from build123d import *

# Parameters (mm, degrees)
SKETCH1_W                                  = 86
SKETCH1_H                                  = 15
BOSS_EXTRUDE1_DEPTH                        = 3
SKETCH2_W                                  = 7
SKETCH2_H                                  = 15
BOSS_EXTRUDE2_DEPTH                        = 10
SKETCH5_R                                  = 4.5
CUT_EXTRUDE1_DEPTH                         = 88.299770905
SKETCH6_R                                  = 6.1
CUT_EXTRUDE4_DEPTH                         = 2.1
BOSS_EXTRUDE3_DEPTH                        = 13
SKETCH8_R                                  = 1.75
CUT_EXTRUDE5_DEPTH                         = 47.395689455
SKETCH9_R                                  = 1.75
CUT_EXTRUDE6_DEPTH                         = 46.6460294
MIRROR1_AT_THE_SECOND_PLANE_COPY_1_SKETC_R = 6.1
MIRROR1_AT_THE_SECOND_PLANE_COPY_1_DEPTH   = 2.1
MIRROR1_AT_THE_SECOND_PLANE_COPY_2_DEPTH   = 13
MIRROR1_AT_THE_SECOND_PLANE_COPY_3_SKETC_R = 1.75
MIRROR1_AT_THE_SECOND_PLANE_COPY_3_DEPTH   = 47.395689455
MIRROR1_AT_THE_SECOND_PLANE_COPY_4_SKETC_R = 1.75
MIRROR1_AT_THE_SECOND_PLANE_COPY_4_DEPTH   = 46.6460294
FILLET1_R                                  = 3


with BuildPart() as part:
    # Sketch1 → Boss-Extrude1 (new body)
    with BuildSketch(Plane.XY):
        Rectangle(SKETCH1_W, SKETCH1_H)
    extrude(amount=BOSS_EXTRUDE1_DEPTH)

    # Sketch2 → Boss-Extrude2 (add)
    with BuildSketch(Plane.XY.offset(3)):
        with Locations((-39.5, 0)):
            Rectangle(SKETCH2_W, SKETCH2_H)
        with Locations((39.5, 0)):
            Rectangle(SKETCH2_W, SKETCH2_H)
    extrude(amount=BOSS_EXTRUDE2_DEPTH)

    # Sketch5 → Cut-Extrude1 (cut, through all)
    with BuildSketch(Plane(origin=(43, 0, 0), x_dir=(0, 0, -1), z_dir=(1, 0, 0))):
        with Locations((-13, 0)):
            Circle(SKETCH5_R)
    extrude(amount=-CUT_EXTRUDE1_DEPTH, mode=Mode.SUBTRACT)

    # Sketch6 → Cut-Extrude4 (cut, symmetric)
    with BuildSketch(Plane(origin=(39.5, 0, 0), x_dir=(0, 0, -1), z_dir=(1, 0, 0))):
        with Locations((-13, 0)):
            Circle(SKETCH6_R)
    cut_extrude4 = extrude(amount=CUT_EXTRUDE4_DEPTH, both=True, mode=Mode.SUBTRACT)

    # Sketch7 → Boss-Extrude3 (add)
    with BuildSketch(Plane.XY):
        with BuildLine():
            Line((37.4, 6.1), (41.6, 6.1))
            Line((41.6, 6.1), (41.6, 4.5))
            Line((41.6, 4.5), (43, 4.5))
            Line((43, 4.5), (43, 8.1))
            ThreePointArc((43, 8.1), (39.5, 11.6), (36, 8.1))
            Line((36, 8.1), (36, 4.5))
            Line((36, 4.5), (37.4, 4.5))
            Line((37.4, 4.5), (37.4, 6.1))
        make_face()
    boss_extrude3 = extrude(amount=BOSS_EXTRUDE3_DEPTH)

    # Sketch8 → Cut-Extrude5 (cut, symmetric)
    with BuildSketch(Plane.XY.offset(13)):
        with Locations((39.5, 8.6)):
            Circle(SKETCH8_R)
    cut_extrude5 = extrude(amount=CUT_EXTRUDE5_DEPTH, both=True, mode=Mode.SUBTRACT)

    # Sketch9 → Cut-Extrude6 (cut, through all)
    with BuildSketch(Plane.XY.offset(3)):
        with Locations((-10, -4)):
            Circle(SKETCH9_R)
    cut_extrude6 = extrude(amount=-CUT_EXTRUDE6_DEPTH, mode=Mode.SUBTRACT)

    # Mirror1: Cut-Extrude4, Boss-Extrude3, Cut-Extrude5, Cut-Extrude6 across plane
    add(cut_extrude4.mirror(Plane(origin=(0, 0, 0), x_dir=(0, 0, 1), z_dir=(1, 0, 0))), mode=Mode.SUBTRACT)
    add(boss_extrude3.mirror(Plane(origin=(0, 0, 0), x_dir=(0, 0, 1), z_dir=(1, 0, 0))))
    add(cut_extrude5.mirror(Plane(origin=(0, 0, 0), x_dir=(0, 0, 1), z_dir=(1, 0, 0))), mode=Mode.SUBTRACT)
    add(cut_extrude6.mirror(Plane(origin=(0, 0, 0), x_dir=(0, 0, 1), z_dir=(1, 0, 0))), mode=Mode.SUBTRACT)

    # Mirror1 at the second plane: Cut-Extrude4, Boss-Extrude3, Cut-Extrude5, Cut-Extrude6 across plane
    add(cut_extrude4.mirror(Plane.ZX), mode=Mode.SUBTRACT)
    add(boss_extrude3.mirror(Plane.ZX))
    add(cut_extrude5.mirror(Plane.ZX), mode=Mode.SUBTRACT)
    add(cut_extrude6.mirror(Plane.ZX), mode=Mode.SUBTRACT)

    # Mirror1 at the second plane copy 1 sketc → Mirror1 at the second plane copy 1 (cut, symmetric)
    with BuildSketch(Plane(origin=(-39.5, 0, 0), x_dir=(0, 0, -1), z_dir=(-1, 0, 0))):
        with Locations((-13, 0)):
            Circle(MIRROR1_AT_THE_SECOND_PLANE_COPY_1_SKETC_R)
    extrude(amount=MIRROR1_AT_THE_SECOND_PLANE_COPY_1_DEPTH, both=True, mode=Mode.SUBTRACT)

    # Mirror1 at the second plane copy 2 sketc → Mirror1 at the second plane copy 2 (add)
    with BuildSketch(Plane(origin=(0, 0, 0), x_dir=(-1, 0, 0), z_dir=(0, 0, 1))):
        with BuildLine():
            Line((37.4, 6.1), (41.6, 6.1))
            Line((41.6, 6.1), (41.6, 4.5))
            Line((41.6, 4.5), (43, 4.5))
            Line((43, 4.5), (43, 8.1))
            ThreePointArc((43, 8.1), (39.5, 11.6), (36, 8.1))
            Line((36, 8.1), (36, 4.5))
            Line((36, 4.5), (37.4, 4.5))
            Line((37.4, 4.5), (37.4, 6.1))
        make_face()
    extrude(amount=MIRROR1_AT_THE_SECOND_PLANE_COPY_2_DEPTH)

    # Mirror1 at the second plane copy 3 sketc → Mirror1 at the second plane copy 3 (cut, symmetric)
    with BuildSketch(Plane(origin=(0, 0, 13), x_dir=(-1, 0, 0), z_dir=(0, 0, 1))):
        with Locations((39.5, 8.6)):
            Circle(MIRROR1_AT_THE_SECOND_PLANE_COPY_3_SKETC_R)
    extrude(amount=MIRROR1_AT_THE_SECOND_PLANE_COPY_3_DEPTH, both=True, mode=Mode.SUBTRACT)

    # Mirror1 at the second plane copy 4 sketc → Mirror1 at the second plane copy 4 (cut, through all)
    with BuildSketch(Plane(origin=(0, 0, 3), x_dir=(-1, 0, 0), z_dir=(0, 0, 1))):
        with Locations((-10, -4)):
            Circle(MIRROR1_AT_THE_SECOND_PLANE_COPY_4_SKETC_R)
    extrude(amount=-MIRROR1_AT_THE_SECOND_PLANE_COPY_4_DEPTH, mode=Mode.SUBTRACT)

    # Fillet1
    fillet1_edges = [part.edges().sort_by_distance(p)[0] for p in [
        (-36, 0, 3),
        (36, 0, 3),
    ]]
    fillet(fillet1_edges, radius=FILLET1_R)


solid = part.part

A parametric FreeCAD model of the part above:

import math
import FreeCAD as App
import Part
import Sketcher

V = App.Vector


def edges_at(feature, points):
    """Names of the edges that pass closest to the given points."""
    edges = feature.Shape.Edges
    near = lambda p: min(range(len(edges)), key=lambda i: edges[i].distToShape(Part.Vertex(*p))[0])
    return sorted({f"Edge{near(p) + 1}" for p in points})


def add_polygon(sketch, points):
    """Adds a closed chain of lines whose ends are joined by coincident constraints."""
    first, n = sketch.GeometryCount, len(points)
    for a, b in zip(points, points[1:] + points[:1]):
        sketch.addGeometry(Part.LineSegment(App.Vector(*a, 0), App.Vector(*b, 0)), False)
    for i in range(n):
        sketch.addConstraint(Sketcher.Constraint("Coincident", first + i, 2, first + (i + 1) % n, 1))

doc = App.newDocument("Part")
body = doc.addObject("PartDesign::Body", "Body")

sketch1 = body.newObject("Sketcher::SketchObject", "Sketch")
sketch1.AttachmentSupport = (doc.getObject("XY_Plane"), [""])
sketch1.MapMode = "FlatFace"
add_polygon(sketch1, [(-43, 7.5), (-43, -7.5), (43, -7.5), (43, 7.5)])
sketch1.addConstraint([
    Sketcher.Constraint("Vertical", 0),
    Sketcher.Constraint("Horizontal", 1),
    Sketcher.Constraint("Vertical", 2),
    Sketcher.Constraint("Horizontal", 3),
    Sketcher.Constraint("Symmetric", 0, 2, 2, 2, -1, 1),
    Sketcher.Constraint("DistanceX", 1, 1, 1, 2, 86.0),
    Sketcher.Constraint("DistanceY", 0, 2, 0, 1, 15.0),
])
pad1 = body.newObject("PartDesign::Pad", "Pad")
pad1.Profile = sketch1
pad1.Length = 3

sketch2 = body.newObject("Sketcher::SketchObject", "Sketch001")
sketch2.AttachmentSupport = (doc.getObject("XY_Plane"), [""])
sketch2.MapMode = "FlatFace"
sketch2.AttachmentOffset = App.Placement(V(0, 0, 3), App.Rotation())
add_polygon(sketch2, [(-43, 7.5), (-43, -7.5), (-36, -7.5), (-36, 7.5)])
add_polygon(sketch2, [(36, 7.5), (36, -7.5), (43, -7.5), (43, 7.5)])
sketch2.addConstraint([
    Sketcher.Constraint("Vertical", 0),
    Sketcher.Constraint("Horizontal", 1),
    Sketcher.Constraint("Vertical", 2),
    Sketcher.Constraint("Horizontal", 3),
    Sketcher.Constraint("Vertical", 4),
    Sketcher.Constraint("Horizontal", 5),
    Sketcher.Constraint("Vertical", 6),
    Sketcher.Constraint("Horizontal", 7),
    Sketcher.Constraint("Symmetric", 2, 2, 4, 2, -1, 1),
    Sketcher.Constraint("Symmetric", 0, 2, 6, 2, -1, 1),
    Sketcher.Constraint("Horizontal", 1, 2, 4, 2),
    Sketcher.Constraint("DistanceX", 1, 1, 1, 2, 7.0),
    Sketcher.Constraint("DistanceY", 0, 2, 0, 1, 15.0),
    Sketcher.Constraint("DistanceX", 0, 2, -1, 1, 43.0),
])
pad2 = body.newObject("PartDesign::Pad", "Pad001")
pad2.Profile = sketch2
pad2.Length = 10

sketch3 = body.newObject("Sketcher::SketchObject", "Sketch002")
sketch3.AttachmentSupport = (doc.getObject("YZ_Plane"), [""])
sketch3.MapMode = "FlatFace"
sketch3.AttachmentOffset = App.Placement(V(0, 0, 43), App.Rotation())
sketch3.addGeometry(Part.Circle(V(0, 13, 0), V(0, 0, 1), 4.5), False)
sketch3.addConstraint([
    Sketcher.Constraint("PointOnObject", 0, 3, -2),
    Sketcher.Constraint("Diameter", 0, 9.0),
    Sketcher.Constraint("DistanceY", -1, 1, 0, 3, 13.0),
])
pocket1 = body.newObject("PartDesign::Pocket", "Pocket")
pocket1.Profile = sketch3
pocket1.Type = "ThroughAll"

sketch4 = body.newObject("Sketcher::SketchObject", "Sketch003")
sketch4.AttachmentSupport = (doc.getObject("YZ_Plane"), [""])
sketch4.MapMode = "FlatFace"
sketch4.AttachmentOffset = App.Placement(V(0, 0, 39.5), App.Rotation())
sketch4.addGeometry(Part.Circle(V(0, 13, 0), V(0, 0, 1), 6.1), False)
sketch4.addConstraint([
    Sketcher.Constraint("PointOnObject", 0, 3, -2),
    Sketcher.Constraint("Diameter", 0, 12.2),
    Sketcher.Constraint("DistanceY", -1, 1, 0, 3, 13.0),
])
pocket2 = body.newObject("PartDesign::Pocket", "Pocket001")
pocket2.Profile = sketch4
pocket2.Length = 4.2
pocket2.Midplane = True

sketch5 = body.newObject("Sketcher::SketchObject", "Sketch004")
sketch5.AttachmentSupport = (doc.getObject("XY_Plane"), [""])
sketch5.MapMode = "FlatFace"
sketch5.addGeometry([
    Part.LineSegment(V(37.4, 6.1, 0), V(41.6, 6.1, 0)),
    Part.LineSegment(V(41.6, 6.1, 0), V(41.6, 4.5, 0)),
    Part.LineSegment(V(41.6, 4.5, 0), V(43, 4.5, 0)),
    Part.LineSegment(V(43, 4.5, 0), V(43, 8.1, 0)),
    Part.ArcOfCircle(Part.Circle(V(39.5, 8.1, 0), V(0, 0, 1), 3.5), math.radians(0), math.radians(180)),
    Part.LineSegment(V(36, 8.1, 0), V(36, 4.5, 0)),
    Part.LineSegment(V(36, 4.5, 0), V(37.4, 4.5, 0)),
    Part.LineSegment(V(37.4, 4.5, 0), V(37.4, 6.1, 0)),
], False)
sketch5.addConstraint([
    Sketcher.Constraint("Coincident", 0, 2, 1, 1),
    Sketcher.Constraint("Coincident", 1, 2, 2, 1),
    Sketcher.Constraint("Coincident", 2, 2, 3, 1),
    Sketcher.Constraint("Tangent", 3, 2, 4, 1),
    Sketcher.Constraint("Tangent", 4, 2, 5, 1),
    Sketcher.Constraint("Coincident", 5, 2, 6, 1),
    Sketcher.Constraint("Coincident", 6, 2, 7, 1),
    Sketcher.Constraint("Coincident", 7, 2, 0, 1),
    Sketcher.Constraint("Horizontal", 0),
    Sketcher.Constraint("Vertical", 1),
    Sketcher.Constraint("Horizontal", 2),
    Sketcher.Constraint("Vertical", 3),
    Sketcher.Constraint("Vertical", 5),
    Sketcher.Constraint("Horizontal", 6),
    Sketcher.Constraint("Vertical", 7),
    Sketcher.Constraint("Horizontal", 2, 2, 5, 2),
    Sketcher.Constraint("Equal", 2, 6),
    Sketcher.Constraint("Radius", 4, 3.5),
    Sketcher.Constraint("DistanceX", 0, 1, 0, 2, 4.2),
    Sketcher.Constraint("DistanceY", 1, 2, 1, 1, 1.6),
    Sketcher.Constraint("DistanceY", 3, 1, 3, 2, 3.6),
    Sketcher.Constraint("DistanceX", -1, 1, 2, 2, 43.0),
    Sketcher.Constraint("DistanceY", -1, 1, 4, 3, 8.1),
])
pad3 = body.newObject("PartDesign::Pad", "Pad002")
pad3.Profile = sketch5
pad3.Length = 13

sketch6 = body.newObject("Sketcher::SketchObject", "Sketch005")
sketch6.AttachmentSupport = (doc.getObject("XY_Plane"), [""])
sketch6.MapMode = "FlatFace"
sketch6.AttachmentOffset = App.Placement(V(0, 0, 13), App.Rotation())
sketch6.addGeometry(Part.Circle(V(39.5, 8.6, 0), V(0, 0, 1), 1.75), False)
sketch6.addConstraint([
    Sketcher.Constraint("Diameter", 0, 3.5),
    Sketcher.Constraint("DistanceX", -1, 1, 0, 3, 39.5),
    Sketcher.Constraint("DistanceY", -1, 1, 0, 3, 8.6),
])
pocket3 = body.newObject("PartDesign::Pocket", "Pocket002")
pocket3.Profile = sketch6
pocket3.Length = 94.791379
pocket3.Midplane = True

sketch7 = body.newObject("Sketcher::SketchObject", "Sketch006")
sketch7.AttachmentSupport = (doc.getObject("XY_Plane"), [""])
sketch7.MapMode = "FlatFace"
sketch7.AttachmentOffset = App.Placement(V(0, 0, 3), App.Rotation())
sketch7.addGeometry(Part.Circle(V(-10, -4, 0), V(0, 0, 1), 1.75), False)
sketch7.addConstraint([
    Sketcher.Constraint("Diameter", 0, 3.5),
    Sketcher.Constraint("DistanceX", 0, 3, -1, 1, 10.0),
    Sketcher.Constraint("DistanceY", 0, 3, -1, 1, 4.0),
])
pocket4 = body.newObject("PartDesign::Pocket", "Pocket003")
pocket4.Profile = sketch7
pocket4.Type = "ThroughAll"
doc.recompute()

mirrored = body.newObject("PartDesign::Mirrored", "Mirrored")
mirrored.Originals = [pocket2, pad3, pocket3, pocket4]
mirrored.MirrorPlane = (doc.getObject("YZ_Plane"), [""])
body.Tip = mirrored
doc.recompute()

mirrored2 = body.newObject("PartDesign::Mirrored", "Mirrored001")
mirrored2.Originals = [pocket2, pad3, pocket3, pocket4]
mirrored2.MirrorPlane = (doc.getObject("XZ_Plane"), [""])
body.Tip = mirrored2

sketch8 = body.newObject("Sketcher::SketchObject", "Sketch007")
sketch8.AttachmentSupport = (doc.getObject("YZ_Plane"), [""])
sketch8.MapMode = "FlatFace"
sketch8.AttachmentOffset = App.Placement(V(0, 0, -39.5), App.Rotation())
sketch8.addGeometry(Part.Circle(V(0, 13, 0), V(0, 0, 1), 6.1), False)
sketch8.addConstraint([
    Sketcher.Constraint("PointOnObject", 0, 3, -2),
    Sketcher.Constraint("Diameter", 0, 12.2),
    Sketcher.Constraint("DistanceY", -1, 1, 0, 3, 13.0),
])
pocket5 = body.newObject("PartDesign::Pocket", "Pocket004")
pocket5.Profile = sketch8
pocket5.Length = 4.2
pocket5.Midplane = True

sketch9 = body.newObject("Sketcher::SketchObject", "Sketch008")
sketch9.AttachmentSupport = (doc.getObject("XY_Plane"), [""])
sketch9.MapMode = "FlatFace"
sketch9.addGeometry([
    Part.LineSegment(V(-37.4, -6.1, 0), V(-41.6, -6.1, 0)),
    Part.LineSegment(V(-41.6, -6.1, 0), V(-41.6, -4.5, 0)),
    Part.LineSegment(V(-41.6, -4.5, 0), V(-43, -4.5, 0)),
    Part.LineSegment(V(-43, -4.5, 0), V(-43, -8.1, 0)),
    Part.ArcOfCircle(Part.Circle(V(-39.5, -8.1, 0), V(0, 0, 1), 3.5), math.radians(180), math.radians(360)),
    Part.LineSegment(V(-36, -8.1, 0), V(-36, -4.5, 0)),
    Part.LineSegment(V(-36, -4.5, 0), V(-37.4, -4.5, 0)),
    Part.LineSegment(V(-37.4, -4.5, 0), V(-37.4, -6.1, 0)),
], False)
sketch9.addConstraint([
    Sketcher.Constraint("Coincident", 0, 2, 1, 1),
    Sketcher.Constraint("Coincident", 1, 2, 2, 1),
    Sketcher.Constraint("Coincident", 2, 2, 3, 1),
    Sketcher.Constraint("Tangent", 3, 2, 4, 1),
    Sketcher.Constraint("Tangent", 4, 2, 5, 1),
    Sketcher.Constraint("Coincident", 5, 2, 6, 1),
    Sketcher.Constraint("Coincident", 6, 2, 7, 1),
    Sketcher.Constraint("Coincident", 7, 2, 0, 1),
    Sketcher.Constraint("Horizontal", 0),
    Sketcher.Constraint("Vertical", 1),
    Sketcher.Constraint("Horizontal", 2),
    Sketcher.Constraint("Vertical", 3),
    Sketcher.Constraint("Vertical", 5),
    Sketcher.Constraint("Horizontal", 6),
    Sketcher.Constraint("Vertical", 7),
    Sketcher.Constraint("Horizontal", 2, 2, 5, 2),
    Sketcher.Constraint("Equal", 2, 6),
    Sketcher.Constraint("Radius", 4, 3.5),
    Sketcher.Constraint("DistanceX", 0, 2, 0, 1, 4.2),
    Sketcher.Constraint("DistanceY", 1, 1, 1, 2, 1.6),
    Sketcher.Constraint("DistanceY", 3, 2, 3, 1, 3.6),
    Sketcher.Constraint("DistanceX", 2, 2, -1, 1, 43.0),
    Sketcher.Constraint("DistanceY", 4, 3, -1, 1, 8.1),
])
pad4 = body.newObject("PartDesign::Pad", "Pad003")
pad4.Profile = sketch9
pad4.Length = 13

sketch10 = body.newObject("Sketcher::SketchObject", "Sketch009")
sketch10.AttachmentSupport = (doc.getObject("XY_Plane"), [""])
sketch10.MapMode = "FlatFace"
sketch10.AttachmentOffset = App.Placement(V(0, 0, 13), App.Rotation())
sketch10.addGeometry(Part.Circle(V(-39.5, -8.6, 0), V(0, 0, 1), 1.75), False)
sketch10.addConstraint([
    Sketcher.Constraint("Diameter", 0, 3.5),
    Sketcher.Constraint("DistanceX", 0, 3, -1, 1, 39.5),
    Sketcher.Constraint("DistanceY", 0, 3, -1, 1, 8.6),
])
pocket6 = body.newObject("PartDesign::Pocket", "Pocket005")
pocket6.Profile = sketch10
pocket6.Length = 94.791379
pocket6.Midplane = True

sketch11 = body.newObject("Sketcher::SketchObject", "Sketch010")
sketch11.AttachmentSupport = (doc.getObject("XY_Plane"), [""])
sketch11.MapMode = "FlatFace"
sketch11.AttachmentOffset = App.Placement(V(0, 0, 3), App.Rotation())
sketch11.addGeometry(Part.Circle(V(10, 4, 0), V(0, 0, 1), 1.75), False)
sketch11.addConstraint([
    Sketcher.Constraint("Diameter", 0, 3.5),
    Sketcher.Constraint("DistanceX", -1, 1, 0, 3, 10.0),
    Sketcher.Constraint("DistanceY", -1, 1, 0, 3, 4.0),
])
pocket7 = body.newObject("PartDesign::Pocket", "Pocket006")
pocket7.Profile = sketch11
pocket7.Type = "ThroughAll"
doc.recompute()

fillet = body.newObject("PartDesign::Fillet", "Fillet")
fillet.Base = (pocket7, edges_at(pocket7, [(-36, 0, 3), (36, 0, 3)]))
fillet.Radius = 3

doc.recompute()
